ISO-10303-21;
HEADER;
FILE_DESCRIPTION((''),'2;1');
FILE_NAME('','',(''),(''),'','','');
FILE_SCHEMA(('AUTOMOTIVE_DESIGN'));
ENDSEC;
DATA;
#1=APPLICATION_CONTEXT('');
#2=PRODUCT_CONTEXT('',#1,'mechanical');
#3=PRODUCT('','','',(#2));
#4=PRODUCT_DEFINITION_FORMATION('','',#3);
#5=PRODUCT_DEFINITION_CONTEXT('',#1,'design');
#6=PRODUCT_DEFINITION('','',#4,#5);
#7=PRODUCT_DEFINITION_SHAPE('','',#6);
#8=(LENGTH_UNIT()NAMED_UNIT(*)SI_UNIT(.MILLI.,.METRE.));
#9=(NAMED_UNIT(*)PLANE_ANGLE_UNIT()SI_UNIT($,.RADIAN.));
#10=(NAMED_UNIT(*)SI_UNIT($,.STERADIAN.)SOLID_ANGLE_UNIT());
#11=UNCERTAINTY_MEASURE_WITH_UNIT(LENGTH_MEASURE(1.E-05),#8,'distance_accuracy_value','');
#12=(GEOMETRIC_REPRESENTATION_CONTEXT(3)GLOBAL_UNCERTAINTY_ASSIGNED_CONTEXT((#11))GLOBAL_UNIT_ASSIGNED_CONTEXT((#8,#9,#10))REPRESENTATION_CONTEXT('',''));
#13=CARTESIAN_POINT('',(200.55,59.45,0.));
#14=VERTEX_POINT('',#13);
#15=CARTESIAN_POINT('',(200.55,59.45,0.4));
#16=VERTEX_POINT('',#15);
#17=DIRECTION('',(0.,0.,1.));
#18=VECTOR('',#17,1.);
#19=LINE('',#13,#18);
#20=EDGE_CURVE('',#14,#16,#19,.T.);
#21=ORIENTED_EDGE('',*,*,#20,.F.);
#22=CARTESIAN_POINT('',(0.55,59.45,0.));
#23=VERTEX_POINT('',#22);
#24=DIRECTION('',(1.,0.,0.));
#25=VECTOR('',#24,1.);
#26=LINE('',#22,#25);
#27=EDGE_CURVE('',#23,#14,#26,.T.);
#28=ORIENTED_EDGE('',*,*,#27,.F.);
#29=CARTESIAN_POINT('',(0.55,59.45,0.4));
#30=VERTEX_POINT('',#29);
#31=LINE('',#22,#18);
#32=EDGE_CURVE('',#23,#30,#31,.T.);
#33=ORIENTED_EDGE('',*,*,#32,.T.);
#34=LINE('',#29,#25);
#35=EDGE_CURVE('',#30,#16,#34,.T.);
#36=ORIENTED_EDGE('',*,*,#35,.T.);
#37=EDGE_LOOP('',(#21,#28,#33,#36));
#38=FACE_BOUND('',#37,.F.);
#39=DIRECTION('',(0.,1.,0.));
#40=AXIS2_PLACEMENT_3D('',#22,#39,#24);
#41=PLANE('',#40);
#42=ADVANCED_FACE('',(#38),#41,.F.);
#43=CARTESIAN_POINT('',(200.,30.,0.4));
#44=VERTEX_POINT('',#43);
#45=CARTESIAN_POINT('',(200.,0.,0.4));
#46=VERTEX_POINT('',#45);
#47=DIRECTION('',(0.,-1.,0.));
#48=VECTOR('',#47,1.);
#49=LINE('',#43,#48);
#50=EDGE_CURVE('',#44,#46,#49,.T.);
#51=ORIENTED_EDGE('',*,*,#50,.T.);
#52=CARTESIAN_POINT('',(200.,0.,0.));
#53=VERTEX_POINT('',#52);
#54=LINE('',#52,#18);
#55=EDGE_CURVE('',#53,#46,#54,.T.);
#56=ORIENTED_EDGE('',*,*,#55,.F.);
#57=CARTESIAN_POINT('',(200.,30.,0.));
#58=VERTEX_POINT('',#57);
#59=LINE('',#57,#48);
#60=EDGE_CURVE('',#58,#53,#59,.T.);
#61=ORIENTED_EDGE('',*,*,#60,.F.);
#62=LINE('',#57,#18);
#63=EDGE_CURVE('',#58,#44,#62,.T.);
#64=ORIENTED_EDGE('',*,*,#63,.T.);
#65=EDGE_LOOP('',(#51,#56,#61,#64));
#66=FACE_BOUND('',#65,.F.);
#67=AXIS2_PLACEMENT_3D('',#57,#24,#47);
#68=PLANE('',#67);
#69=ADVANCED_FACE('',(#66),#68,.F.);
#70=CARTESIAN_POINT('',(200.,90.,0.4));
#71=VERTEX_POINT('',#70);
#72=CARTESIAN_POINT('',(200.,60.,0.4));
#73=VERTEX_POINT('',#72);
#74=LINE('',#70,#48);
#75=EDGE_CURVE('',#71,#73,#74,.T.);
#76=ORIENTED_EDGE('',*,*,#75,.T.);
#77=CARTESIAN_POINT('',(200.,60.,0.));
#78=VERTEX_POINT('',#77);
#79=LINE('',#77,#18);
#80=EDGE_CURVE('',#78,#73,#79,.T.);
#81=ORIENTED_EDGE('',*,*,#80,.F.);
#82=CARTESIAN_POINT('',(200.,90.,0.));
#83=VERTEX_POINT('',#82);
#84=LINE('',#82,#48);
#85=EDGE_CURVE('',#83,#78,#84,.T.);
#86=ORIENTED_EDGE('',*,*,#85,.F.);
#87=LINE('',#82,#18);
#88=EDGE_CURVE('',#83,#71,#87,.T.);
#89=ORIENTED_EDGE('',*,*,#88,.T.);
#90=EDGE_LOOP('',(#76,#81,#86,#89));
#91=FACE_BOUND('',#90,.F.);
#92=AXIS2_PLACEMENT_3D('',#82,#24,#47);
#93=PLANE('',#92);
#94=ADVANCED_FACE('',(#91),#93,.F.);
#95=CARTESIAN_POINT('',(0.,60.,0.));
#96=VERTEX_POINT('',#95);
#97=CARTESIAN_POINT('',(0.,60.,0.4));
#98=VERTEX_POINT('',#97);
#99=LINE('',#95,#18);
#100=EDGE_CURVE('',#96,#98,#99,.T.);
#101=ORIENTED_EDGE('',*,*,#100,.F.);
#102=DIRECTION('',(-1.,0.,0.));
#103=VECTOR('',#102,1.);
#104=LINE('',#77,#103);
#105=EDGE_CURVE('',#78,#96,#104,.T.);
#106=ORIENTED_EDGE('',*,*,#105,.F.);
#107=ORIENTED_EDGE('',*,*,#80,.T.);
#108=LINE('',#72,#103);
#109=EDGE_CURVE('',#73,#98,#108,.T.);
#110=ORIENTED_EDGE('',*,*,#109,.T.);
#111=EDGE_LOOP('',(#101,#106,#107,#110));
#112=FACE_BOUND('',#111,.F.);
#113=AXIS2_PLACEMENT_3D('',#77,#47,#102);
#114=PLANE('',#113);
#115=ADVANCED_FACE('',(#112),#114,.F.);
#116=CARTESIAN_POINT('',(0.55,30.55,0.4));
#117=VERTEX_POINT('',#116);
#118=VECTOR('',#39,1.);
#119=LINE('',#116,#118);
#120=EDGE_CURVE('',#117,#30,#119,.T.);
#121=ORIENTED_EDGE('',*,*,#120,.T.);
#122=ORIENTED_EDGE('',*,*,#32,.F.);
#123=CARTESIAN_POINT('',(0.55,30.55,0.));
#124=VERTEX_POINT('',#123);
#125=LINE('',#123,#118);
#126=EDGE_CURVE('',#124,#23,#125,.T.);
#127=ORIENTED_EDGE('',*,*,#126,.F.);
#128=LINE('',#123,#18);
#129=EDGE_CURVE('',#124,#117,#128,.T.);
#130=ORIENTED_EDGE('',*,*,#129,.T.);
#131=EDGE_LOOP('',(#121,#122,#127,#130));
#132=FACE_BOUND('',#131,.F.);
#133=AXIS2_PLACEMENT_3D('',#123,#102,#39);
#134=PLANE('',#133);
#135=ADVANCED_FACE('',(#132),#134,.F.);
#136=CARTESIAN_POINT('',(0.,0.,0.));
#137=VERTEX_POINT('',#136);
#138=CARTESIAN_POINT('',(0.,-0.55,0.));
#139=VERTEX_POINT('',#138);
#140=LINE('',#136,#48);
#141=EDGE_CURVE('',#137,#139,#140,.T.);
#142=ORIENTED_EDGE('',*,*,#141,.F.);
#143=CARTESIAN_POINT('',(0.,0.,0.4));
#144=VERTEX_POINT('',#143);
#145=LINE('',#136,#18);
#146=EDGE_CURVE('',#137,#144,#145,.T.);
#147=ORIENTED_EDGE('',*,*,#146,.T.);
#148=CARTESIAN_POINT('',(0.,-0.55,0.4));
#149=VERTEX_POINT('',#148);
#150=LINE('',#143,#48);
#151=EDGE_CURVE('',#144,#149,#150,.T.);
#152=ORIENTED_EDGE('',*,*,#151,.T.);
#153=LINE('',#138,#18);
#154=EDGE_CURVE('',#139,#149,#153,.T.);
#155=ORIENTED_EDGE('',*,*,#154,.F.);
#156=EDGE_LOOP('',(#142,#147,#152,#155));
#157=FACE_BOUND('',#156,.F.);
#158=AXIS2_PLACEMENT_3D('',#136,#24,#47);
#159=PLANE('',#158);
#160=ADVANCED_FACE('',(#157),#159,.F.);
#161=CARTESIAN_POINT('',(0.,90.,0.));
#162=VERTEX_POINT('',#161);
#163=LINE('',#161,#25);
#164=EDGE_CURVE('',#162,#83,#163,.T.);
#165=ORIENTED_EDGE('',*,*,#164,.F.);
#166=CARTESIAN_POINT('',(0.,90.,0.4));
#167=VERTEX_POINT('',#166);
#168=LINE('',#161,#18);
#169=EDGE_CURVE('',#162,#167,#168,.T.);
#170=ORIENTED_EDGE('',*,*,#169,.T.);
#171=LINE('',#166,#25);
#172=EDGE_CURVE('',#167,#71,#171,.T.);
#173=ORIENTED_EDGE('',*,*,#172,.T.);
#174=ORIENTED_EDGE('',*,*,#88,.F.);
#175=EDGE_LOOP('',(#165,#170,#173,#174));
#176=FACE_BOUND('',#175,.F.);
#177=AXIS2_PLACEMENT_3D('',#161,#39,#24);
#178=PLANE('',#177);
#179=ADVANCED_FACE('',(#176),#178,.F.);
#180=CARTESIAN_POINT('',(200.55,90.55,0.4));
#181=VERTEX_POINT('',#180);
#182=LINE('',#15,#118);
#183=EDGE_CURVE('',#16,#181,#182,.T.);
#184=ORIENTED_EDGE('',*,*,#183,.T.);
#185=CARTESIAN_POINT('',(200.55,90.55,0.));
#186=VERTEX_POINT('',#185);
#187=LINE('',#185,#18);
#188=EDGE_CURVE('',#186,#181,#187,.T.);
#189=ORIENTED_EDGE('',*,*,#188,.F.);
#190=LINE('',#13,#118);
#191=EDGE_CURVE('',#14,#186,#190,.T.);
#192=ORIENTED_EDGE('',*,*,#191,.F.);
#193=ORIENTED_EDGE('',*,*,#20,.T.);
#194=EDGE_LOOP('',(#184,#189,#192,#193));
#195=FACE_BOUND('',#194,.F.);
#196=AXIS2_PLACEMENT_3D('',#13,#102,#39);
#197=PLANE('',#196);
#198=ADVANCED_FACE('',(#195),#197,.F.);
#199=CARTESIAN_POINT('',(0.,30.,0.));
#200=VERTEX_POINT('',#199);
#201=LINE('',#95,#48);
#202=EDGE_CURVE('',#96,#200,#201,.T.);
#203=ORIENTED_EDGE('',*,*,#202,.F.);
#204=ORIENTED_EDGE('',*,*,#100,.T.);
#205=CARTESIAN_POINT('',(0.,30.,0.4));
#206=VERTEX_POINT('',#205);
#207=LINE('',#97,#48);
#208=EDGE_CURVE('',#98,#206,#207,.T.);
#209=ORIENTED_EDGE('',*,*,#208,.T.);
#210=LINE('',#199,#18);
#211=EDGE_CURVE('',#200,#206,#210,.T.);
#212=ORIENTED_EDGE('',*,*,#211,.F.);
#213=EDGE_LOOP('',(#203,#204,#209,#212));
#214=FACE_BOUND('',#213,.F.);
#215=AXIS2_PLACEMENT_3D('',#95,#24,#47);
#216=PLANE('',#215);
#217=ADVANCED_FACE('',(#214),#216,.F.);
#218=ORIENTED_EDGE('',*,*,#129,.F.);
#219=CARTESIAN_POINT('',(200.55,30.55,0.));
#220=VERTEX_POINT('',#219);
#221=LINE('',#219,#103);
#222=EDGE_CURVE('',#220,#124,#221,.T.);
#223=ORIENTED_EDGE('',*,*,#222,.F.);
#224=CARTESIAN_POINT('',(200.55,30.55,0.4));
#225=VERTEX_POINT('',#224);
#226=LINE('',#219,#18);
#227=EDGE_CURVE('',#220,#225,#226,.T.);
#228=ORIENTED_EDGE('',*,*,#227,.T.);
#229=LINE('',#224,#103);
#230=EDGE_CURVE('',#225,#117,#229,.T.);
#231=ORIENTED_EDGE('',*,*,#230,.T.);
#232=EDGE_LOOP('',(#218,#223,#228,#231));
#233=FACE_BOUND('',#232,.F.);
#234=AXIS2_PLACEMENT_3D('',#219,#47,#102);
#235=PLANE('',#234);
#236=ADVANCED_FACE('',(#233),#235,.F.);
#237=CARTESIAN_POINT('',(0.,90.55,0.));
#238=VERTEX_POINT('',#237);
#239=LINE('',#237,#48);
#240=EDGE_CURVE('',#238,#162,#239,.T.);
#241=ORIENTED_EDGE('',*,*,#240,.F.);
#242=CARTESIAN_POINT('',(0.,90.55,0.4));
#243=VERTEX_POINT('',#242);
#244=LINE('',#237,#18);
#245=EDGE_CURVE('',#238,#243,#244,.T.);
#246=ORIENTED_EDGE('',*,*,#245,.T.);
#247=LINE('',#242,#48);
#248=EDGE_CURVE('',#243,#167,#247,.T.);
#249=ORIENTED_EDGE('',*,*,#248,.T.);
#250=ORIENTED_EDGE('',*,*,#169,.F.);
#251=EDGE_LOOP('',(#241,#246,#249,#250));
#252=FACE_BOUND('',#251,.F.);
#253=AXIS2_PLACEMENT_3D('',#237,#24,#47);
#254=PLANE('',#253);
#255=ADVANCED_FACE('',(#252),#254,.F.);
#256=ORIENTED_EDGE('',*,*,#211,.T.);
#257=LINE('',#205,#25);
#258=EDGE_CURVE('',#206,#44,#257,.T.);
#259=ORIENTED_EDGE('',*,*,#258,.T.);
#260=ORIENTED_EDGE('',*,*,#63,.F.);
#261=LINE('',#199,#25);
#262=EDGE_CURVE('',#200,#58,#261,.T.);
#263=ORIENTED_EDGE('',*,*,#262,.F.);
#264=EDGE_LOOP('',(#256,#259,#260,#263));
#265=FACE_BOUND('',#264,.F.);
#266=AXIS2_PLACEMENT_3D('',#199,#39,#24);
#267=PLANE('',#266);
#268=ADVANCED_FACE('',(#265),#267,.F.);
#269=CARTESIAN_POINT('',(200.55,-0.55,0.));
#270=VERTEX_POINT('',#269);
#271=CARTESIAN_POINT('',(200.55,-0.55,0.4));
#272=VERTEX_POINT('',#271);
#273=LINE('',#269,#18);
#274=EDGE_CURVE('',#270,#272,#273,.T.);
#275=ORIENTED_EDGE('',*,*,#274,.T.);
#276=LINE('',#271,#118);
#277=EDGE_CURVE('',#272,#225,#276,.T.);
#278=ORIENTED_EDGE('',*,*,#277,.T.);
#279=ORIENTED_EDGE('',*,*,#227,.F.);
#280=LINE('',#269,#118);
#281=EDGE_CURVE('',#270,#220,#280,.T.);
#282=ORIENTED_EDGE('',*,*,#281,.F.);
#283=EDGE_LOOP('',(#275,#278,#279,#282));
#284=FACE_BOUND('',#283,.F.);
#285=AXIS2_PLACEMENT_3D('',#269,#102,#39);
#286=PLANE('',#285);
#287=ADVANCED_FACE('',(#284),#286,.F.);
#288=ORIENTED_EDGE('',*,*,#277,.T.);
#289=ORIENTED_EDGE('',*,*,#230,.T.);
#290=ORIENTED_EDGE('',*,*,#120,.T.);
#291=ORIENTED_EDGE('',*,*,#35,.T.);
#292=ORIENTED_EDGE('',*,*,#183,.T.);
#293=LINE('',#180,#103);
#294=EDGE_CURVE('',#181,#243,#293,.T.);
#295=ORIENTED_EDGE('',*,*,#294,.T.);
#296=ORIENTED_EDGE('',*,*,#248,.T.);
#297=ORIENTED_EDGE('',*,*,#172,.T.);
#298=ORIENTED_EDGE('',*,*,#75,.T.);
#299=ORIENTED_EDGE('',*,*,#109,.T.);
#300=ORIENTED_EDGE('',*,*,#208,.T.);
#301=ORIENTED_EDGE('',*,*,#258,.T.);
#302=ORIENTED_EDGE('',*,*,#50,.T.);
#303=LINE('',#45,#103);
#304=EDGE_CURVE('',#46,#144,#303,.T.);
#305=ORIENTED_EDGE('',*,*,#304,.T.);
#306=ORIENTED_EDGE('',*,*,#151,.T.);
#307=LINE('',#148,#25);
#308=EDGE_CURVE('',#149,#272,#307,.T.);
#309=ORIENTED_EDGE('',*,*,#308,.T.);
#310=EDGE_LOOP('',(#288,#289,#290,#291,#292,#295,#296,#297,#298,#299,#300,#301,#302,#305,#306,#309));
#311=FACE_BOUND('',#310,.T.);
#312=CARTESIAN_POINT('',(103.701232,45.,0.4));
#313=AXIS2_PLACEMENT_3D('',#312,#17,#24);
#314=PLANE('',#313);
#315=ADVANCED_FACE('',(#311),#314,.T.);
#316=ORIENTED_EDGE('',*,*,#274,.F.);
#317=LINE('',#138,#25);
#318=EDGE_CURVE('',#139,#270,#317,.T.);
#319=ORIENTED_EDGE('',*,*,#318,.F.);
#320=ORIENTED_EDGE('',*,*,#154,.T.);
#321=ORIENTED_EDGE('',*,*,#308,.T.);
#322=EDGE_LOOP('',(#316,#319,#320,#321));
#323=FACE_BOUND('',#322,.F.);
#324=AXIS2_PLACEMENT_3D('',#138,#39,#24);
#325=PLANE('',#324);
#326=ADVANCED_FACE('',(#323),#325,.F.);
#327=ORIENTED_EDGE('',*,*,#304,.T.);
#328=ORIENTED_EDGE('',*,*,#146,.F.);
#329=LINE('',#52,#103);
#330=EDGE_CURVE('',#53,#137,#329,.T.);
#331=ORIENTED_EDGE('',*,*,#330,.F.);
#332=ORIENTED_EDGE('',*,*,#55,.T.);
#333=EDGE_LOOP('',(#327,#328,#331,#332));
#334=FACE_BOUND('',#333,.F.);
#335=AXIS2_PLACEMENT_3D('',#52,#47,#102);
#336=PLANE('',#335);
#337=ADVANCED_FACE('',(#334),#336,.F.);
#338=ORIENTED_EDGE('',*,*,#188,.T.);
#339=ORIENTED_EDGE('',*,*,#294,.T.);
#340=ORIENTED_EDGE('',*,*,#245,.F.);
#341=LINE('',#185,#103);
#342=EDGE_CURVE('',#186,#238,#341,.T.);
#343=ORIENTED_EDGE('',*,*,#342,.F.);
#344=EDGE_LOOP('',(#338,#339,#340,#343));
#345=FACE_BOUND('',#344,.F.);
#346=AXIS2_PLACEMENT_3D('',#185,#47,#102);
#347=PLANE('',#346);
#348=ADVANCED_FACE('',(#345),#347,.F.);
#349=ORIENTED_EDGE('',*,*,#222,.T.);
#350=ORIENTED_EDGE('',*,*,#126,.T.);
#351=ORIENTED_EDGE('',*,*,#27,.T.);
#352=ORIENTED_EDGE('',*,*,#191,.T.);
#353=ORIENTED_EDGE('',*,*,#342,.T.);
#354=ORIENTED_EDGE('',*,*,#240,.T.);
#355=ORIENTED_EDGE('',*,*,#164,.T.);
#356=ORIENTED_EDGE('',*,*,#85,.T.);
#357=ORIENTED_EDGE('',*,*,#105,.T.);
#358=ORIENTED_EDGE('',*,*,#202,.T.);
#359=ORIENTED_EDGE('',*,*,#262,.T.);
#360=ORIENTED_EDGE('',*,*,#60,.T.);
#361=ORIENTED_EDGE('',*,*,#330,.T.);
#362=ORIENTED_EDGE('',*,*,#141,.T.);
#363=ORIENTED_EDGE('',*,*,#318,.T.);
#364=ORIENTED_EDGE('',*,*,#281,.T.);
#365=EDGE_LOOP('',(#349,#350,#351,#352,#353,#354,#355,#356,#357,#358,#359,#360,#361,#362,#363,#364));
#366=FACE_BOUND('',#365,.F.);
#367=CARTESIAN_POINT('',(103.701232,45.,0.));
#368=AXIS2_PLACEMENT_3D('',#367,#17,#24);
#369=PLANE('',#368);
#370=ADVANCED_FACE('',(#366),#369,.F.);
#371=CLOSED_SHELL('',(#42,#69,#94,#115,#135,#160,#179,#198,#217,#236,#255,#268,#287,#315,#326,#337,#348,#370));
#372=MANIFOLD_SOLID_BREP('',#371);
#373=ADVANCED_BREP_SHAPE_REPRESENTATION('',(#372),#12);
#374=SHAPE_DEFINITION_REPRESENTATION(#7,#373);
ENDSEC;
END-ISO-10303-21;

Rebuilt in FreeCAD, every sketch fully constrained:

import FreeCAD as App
import Part
import Sketcher

V = App.Vector


def add_polygon(sketch, points):
    """Adds a closed chain of lines whose ends are joined by coincident constraints."""
    first, n = sketch.GeometryCount, len(points)
    for a, b in zip(points, points[1:] + points[:1]):
        sketch.addGeometry(Part.LineSegment(App.Vector(*a, 0), App.Vector(*b, 0)), False)
    for i in range(n):
        sketch.addConstraint(Sketcher.Constraint("Coincident", first + i, 2, first + (i + 1) % n, 1))

doc = App.newDocument("Part")
body = doc.addObject("PartDesign::Body", "Body")

# Sketch on XY plane
sketch1 = body.newObject("Sketcher::SketchObject", "Sketch")
sketch1.AttachmentSupport = (doc.getObject("XY_Plane"), [""])
sketch1.MapMode = "FlatFace"
add_polygon(sketch1, [(200, 0), (0, 0), (0, -0.6), (200.6, -0.6), (200.6, 30.6), (0.6, 30.6), (0.6, 59.5), (200.6, 59.5), (200.6, 90.5), (0, 90.5), (0, 90), (200, 90), (200, 60), (0, 60), (0, 30), (200, 30)])  # lines 0-15
sketch1.addConstraint([
    Sketcher.Constraint("Horizontal", 0),
    Sketcher.Constraint("Vertical", 1),
    Sketcher.Constraint("Horizontal", 2),
    Sketcher.Constraint("Vertical", 3),
    Sketcher.Constraint("Horizontal", 4),
    Sketcher.Constraint("Vertical", 5),
    Sketcher.Constraint("Horizontal", 6),
    Sketcher.Constraint("Vertical", 7),
    Sketcher.Constraint("Horizontal", 8),
    Sketcher.Constraint("Vertical", 9),
    Sketcher.Constraint("Horizontal", 10),
    Sketcher.Constraint("Vertical", 11),
    Sketcher.Constraint("Horizontal", 12),
    Sketcher.Constraint("Vertical", 13),
    Sketcher.Constraint("Horizontal", 14),
    Sketcher.Constraint("Vertical", 15),
    Sketcher.Constraint("Coincident", 0, 2, -1, 1),
    Sketcher.Constraint("PointOnObject", 8, 2, -2),
    Sketcher.Constraint("PointOnObject", 12, 2, -2),
    Sketcher.Constraint("Vertical", 3, 2, 6, 2),
    Sketcher.Constraint("Vertical", 11, 2, 14, 2),
    Sketcher.Constraint("Equal", 0, 4),
    Sketcher.Constraint("Equal", 3, 7),
    Sketcher.Constraint("Equal", 1, 9),
    Sketcher.Constraint("Equal", 11, 13),
    Sketcher.Constraint("Equal", 13, 15),
    Sketcher.Constraint("DistanceX", 0, 2, 0, 1, 200.0),
    Sketcher.Constraint("DistanceY", 11, 2, 11, 1, 30.0),
    Sketcher.Constraint("DistanceY", 3, 1, 3, 2, 31.1),
    Sketcher.Constraint("DistanceY", 5, 1, 5, 2, 28.9),
    Sketcher.Constraint("DistanceX", 2, 1, 2, 2, 200.55),
])
pad1 = body.newObject("PartDesign::Pad", "Pad")
pad1.Profile = sketch1
pad1.Length = 0.4

doc.recompute()
